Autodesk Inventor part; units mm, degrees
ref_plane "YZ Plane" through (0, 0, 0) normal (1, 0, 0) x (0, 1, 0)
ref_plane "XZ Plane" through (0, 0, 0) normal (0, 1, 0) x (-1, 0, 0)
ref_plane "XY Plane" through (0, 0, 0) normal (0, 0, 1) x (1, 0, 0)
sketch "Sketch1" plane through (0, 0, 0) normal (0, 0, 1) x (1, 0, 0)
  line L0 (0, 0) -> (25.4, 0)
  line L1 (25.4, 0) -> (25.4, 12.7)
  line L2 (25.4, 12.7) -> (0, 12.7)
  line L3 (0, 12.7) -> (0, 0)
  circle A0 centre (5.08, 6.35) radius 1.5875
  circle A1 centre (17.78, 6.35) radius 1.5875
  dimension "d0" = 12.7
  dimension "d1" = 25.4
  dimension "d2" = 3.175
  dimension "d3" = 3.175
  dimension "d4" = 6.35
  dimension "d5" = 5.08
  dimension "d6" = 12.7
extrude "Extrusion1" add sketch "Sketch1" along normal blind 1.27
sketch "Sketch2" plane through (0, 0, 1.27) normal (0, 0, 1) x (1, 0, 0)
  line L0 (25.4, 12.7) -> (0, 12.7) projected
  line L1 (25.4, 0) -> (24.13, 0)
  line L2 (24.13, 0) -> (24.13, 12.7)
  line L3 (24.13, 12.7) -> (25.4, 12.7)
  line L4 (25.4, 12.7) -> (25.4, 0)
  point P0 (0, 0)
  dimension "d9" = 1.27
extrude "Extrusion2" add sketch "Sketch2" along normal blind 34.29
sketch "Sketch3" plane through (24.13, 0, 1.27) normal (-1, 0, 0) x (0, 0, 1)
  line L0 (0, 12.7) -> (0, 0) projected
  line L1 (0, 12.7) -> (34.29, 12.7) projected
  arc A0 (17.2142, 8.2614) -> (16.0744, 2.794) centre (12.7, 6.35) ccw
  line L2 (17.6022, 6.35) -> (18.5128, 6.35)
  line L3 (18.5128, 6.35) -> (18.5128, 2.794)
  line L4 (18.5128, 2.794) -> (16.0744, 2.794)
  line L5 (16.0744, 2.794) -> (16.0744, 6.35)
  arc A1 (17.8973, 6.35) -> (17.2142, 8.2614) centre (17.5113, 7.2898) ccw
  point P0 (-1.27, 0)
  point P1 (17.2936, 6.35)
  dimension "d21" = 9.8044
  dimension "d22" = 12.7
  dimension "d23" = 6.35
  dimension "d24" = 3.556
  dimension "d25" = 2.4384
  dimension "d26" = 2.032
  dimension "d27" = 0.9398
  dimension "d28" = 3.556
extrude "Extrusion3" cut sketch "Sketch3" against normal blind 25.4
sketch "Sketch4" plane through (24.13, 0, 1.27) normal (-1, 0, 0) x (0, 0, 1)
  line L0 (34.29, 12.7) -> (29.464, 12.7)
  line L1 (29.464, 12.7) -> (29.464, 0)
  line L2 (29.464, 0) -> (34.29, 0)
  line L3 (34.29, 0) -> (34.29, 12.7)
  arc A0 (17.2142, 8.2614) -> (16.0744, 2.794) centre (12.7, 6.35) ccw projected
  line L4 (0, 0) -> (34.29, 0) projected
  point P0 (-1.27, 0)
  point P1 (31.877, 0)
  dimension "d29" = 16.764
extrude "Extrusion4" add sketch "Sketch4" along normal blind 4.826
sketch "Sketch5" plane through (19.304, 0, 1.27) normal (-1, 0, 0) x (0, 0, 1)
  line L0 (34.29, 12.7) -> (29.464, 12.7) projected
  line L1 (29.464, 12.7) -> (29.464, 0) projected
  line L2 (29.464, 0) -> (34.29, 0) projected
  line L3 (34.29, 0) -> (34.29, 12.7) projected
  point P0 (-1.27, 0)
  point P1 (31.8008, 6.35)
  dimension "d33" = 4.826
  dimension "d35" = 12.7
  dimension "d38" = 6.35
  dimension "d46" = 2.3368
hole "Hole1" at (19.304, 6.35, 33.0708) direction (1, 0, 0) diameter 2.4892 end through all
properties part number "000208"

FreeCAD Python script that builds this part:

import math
import FreeCAD as App
import Part
import Sketcher
Q = App.Units.Quantity


def add_polygon(sketch, points):
    """Adds a closed chain of lines whose ends are joined by coincident constraints."""
    first, n = sketch.GeometryCount, len(points)
    for a, b in zip(points, points[1:] + points[:1]):
        sketch.addGeometry(Part.LineSegment(App.Vector(*a, 0), App.Vector(*b, 0)), False)
    for i in range(n):
        sketch.addConstraint(Sketcher.Constraint("Coincident", first + i, 2, first + (i + 1) % n, 1))

doc = App.newDocument("Part")
body = doc.addObject("PartDesign::Body", "Body")

# Sketch on XY plane
sketch1 = doc.addObject("Sketcher::SketchObject", "Sketch")
body.addObject(sketch1)
sketch1.AttachmentSupport = (doc.XY_Plane, [""])
sketch1.MapMode = "FlatFace"
add_polygon(sketch1, [(0, 12.7), (0, 0), (25.4, 0), (25.4, 12.7)])  # lines 0-3
sketch1.addGeometry(Part.Circle(App.Vector(5.08, 6.35, 0), App.Vector(0, 0, 1), 1.5875), False)  # 4
sketch1.addGeometry(Part.Circle(App.Vector(17.78, 6.35, 0), App.Vector(0, 0, 1), 1.5875), False)  # 5
sketch1.addConstraint([
    Sketcher.Constraint("Vertical", 0),
    Sketcher.Constraint("Horizontal", 1),
    Sketcher.Constraint("Vertical", 2),
    Sketcher.Constraint("Horizontal", 3),
    Sketcher.Constraint("Coincident", 0, 2, -1, 1),
    Sketcher.Constraint("Equal", 4, 5),
    Sketcher.Constraint("Horizontal", 4, 3, 5, 3),
    Sketcher.Constraint("DistanceX", 1, 1, 1, 2, Q("1 in")),
    Sketcher.Constraint("Diameter", 4, Q("0.125 in")),
    Sketcher.Constraint("DistanceY", 0, 2, 0, 1, Q("0.5 in")),
    Sketcher.Constraint("DistanceX", -1, 1, 4, 3, Q("0.2 in")),
    Sketcher.Constraint("DistanceX", 4, 3, 5, 3, Q("0.5 in")),
    Sketcher.Constraint("DistanceY", -1, 1, 4, 3, Q("0.25 in")),
])
pad1 = doc.addObject("PartDesign::Pad", "Pad")
body.addObject(pad1)
pad1.Profile = sketch1
pad1.Length = Q("0.05 in")

# Sketch on XY plane
sketch2 = doc.addObject("Sketcher::SketchObject", "Sketch001")
body.addObject(sketch2)
sketch2.AttachmentSupport = (doc.XY_Plane, [""])
sketch2.MapMode = "FlatFace"
sketch2.AttachmentOffset = App.Placement(App.Vector(0, 0, 0.05 * 25.4), App.Rotation())
add_polygon(sketch2, [(25.4, 0), (25.4, 12.7), (24.13, 12.7), (24.13, 0)])  # lines 0-3
sketch2.addConstraint([
    Sketcher.Constraint("Vertical", 0),
    Sketcher.Constraint("Horizontal", 1),
    Sketcher.Constraint("Vertical", 2),
    Sketcher.Constraint("Horizontal", 3),
    Sketcher.Constraint("PointOnObject", 2, 2, -1),
    Sketcher.Constraint("DistanceX", 1, 2, 1, 1, Q("0.05 in")),
    Sketcher.Constraint("DistanceY", 0, 1, 0, 2, Q("0.5 in")),
    Sketcher.Constraint("DistanceX", -1, 1, 0, 2, Q("1 in")),
])
pad2 = doc.addObject("PartDesign::Pad", "Pad001")
body.addObject(pad2)
pad2.Profile = sketch2
pad2.Length = Q("1.35 in")

# Sketch on YZ plane
sketch3 = doc.addObject("Sketcher::SketchObject", "Sketch002")
body.addObject(sketch3)
sketch3.AttachmentSupport = (doc.YZ_Plane, [""])
sketch3.MapMode = "FlatFace"
sketch3.AttachmentOffset = App.Placement(App.Vector(0, 0, 0.95 * 25.4), App.Rotation())
sketch3.addGeometry([
    Part.ArcOfCircle(Part.Circle(App.Vector(7.2898, 18.7813, 0), App.Vector(0, 0, 1), 1.015982), math.radians(-17.002808), math.radians(157.670785)),  # 0
    Part.ArcOfCircle(Part.Circle(App.Vector(6.35, 13.97, 0), App.Vector(0, 0, 1), 4.902188), math.radians(136.501), math.radians(427.051257)),  # 1
    Part.LineSegment(App.Vector(2.794, 17.3444, 0), App.Vector(2.794, 19.7828, 0)),  # 2
    Part.LineSegment(App.Vector(2.794, 19.7828, 0), App.Vector(6.35, 19.7828, 0)),  # 3
    Part.LineSegment(App.Vector(6.35, 19.7828, 0), App.Vector(6.35, 19.1673, 0)),  # 4
], False)
sketch3.addConstraint([
    Sketcher.Constraint("Coincident", 0, 1, 1, 2),
    Sketcher.Constraint("Coincident", 1, 1, 2, 1),
    Sketcher.Constraint("Coincident", 2, 2, 3, 1),
    Sketcher.Constraint("Coincident", 3, 2, 4, 1),
    Sketcher.Constraint("Coincident", 4, 2, 0, 2),
    Sketcher.Constraint("Vertical", 2),
    Sketcher.Constraint("Horizontal", 3),
    Sketcher.Constraint("Vertical", 4),
    Sketcher.Constraint("Vertical", 1, 3, 3, 2),
    Sketcher.Constraint("Radius", 0, Q("0.04 in")),
    Sketcher.Constraint("Radius", 1, Q("0.193 in")),
    Sketcher.Constraint("DistanceX", 3, 1, 3, 2, Q("0.14 in")),
    Sketcher.Constraint("DistanceY", 2, 1, 2, 2, Q("0.096 in")),
    Sketcher.Constraint("DistanceX", -1, 1, 1, 3, Q("0.25 in")),
    Sketcher.Constraint("DistanceX", 1, 3, 0, 3, Q("0.037 in")),
    Sketcher.Constraint("DistanceY", -1, 1, 1, 3, Q("0.55 in")),
    Sketcher.Constraint("DistanceY", 4, 2, 4, 1, 0.6155),
])
pocket1 = doc.addObject("PartDesign::Pocket", "Pocket")
body.addObject(pocket1)
pocket1.Profile = sketch3
pocket1.Length = Q("1 in")
pocket1.Reversed = True

# Sketch on YZ plane
sketch4 = doc.addObject("Sketcher::SketchObject", "Sketch003")
body.addObject(sketch4)
sketch4.AttachmentSupport = (doc.YZ_Plane, [""])
sketch4.MapMode = "FlatFace"
sketch4.AttachmentOffset = App.Placement(App.Vector(0, 0, 0.95 * 25.4), App.Rotation())
add_polygon(sketch4, [(0, 35.56), (12.7, 35.56), (12.7, 30.734), (0, 30.734)])  # lines 0-3
sketch4.addConstraint([
    Sketcher.Constraint("Horizontal", 0),
    Sketcher.Constraint("Vertical", 1),
    Sketcher.Constraint("Horizontal", 2),
    Sketcher.Constraint("Vertical", 3),
    Sketcher.Constraint("PointOnObject", 2, 2, -2),
    Sketcher.Constraint("DistanceX", 0, 1, 0, 2, Q("0.5 in")),
    Sketcher.Constraint("DistanceY", 1, 2, 1, 1, Q("0.19 in")),
    Sketcher.Constraint("DistanceY", -1, 1, 0, 2, Q("1.4 in")),
])
pad3 = doc.addObject("PartDesign::Pad", "Pad002")
body.addObject(pad3)
pad3.Profile = sketch4
pad3.Length = Q("0.19 in")
pad3.Reversed = True

# Sketch on YZ plane
sketch5 = doc.addObject("Sketcher::SketchObject", "Sketch004")
body.addObject(sketch5)
sketch5.AttachmentSupport = (doc.YZ_Plane, [""])
sketch5.MapMode = "FlatFace"
sketch5.AttachmentOffset = App.Placement(App.Vector(0, 0, 0.76 * 25.4), App.Rotation())
sketch5.addGeometry(Part.Circle(App.Vector(6.35, 33.0708, 0), App.Vector(0, 0, 1), 1.2446), False)
sketch5.addConstraint([
    Sketcher.Constraint("Diameter", 0, Q("0.098 in")),
    Sketcher.Constraint("DistanceX", -1, 1, 0, 3, Q("0.25 in")),
    Sketcher.Constraint("DistanceY", -1, 1, 0, 3, Q("1.302 in")),
])
doc.recompute()
hole = doc.addObject("PartDesign::Hole", "Hole")
body.addObject(hole)
hole.Profile = sketch5
hole.ThreadType = "None"
hole.Diameter = Q("0.098 in")
hole.DepthType = "ThroughAll"
hole.Reversed = True

doc.recompute()
